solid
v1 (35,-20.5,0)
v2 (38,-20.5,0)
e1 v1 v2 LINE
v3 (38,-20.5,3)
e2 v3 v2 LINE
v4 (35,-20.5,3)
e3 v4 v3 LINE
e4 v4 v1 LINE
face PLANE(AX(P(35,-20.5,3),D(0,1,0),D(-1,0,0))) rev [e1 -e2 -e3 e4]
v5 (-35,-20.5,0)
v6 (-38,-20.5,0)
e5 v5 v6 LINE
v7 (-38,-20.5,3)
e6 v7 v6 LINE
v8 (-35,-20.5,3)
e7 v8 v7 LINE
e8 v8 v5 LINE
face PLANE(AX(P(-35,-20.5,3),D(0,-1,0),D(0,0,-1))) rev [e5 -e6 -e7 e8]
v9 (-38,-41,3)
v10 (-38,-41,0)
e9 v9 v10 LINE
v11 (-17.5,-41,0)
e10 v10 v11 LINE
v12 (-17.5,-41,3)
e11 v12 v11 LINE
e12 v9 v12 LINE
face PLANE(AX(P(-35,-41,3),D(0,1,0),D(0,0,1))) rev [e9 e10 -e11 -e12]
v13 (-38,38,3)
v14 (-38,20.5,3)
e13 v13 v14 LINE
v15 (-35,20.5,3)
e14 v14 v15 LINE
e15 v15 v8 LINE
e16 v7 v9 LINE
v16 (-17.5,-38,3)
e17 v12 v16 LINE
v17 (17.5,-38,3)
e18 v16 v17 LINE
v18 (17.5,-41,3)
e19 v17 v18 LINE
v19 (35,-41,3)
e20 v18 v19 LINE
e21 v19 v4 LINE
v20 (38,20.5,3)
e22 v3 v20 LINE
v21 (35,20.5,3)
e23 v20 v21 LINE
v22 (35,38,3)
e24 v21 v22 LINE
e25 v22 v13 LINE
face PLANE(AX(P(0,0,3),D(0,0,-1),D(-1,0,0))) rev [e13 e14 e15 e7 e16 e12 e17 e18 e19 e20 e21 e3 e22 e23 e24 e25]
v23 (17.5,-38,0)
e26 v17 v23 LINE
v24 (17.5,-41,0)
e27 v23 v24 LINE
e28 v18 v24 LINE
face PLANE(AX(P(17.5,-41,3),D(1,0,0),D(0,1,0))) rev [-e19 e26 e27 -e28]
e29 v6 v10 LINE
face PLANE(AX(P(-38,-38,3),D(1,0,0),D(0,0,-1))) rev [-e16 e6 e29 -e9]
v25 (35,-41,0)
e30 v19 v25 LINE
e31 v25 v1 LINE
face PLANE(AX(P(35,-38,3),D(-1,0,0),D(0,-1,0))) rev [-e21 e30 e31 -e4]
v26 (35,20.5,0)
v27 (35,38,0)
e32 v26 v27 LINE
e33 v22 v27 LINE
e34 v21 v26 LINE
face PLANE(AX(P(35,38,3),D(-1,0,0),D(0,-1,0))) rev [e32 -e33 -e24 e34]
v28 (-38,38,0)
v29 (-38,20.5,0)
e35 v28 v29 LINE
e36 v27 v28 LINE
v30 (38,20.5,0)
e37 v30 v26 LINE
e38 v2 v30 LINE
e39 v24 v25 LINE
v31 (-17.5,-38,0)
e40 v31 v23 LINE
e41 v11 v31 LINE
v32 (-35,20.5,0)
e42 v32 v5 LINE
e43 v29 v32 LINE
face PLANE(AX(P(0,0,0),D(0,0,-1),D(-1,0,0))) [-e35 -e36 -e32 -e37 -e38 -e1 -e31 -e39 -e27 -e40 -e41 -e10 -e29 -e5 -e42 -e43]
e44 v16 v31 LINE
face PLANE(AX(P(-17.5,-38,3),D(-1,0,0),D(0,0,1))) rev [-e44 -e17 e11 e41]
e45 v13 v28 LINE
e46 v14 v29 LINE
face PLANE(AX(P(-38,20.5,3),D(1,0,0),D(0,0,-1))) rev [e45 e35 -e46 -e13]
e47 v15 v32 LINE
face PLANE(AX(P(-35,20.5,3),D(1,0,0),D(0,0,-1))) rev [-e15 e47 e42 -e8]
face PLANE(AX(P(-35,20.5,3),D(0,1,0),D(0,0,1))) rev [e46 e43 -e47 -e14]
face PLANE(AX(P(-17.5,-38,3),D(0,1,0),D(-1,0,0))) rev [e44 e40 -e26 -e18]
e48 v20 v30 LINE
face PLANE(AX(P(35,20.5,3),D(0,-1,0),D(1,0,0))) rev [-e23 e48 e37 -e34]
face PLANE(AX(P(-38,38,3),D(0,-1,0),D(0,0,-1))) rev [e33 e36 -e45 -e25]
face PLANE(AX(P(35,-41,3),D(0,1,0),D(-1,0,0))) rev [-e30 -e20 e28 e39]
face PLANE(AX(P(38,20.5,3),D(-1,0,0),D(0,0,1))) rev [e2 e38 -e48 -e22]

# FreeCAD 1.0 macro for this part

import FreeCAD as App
import Part
import Sketcher

doc = App.newDocument("Part")
body = doc.addObject("PartDesign::Body", "Body")

sketch1 = body.newObject("Sketcher::SketchObject", "Sketch")
sketch1.AttachmentSupport = (doc.getObject("XY_Plane"), [""])
sketch1.MapMode = "FlatFace"
sketch1.addGeometry([
    Part.LineSegment(App.Vector(35, 38, 0), App.Vector(-38, 38, 0)),
    Part.LineSegment(App.Vector(-38, 38, 0), App.Vector(-38, 20.5, 0)),
    Part.LineSegment(App.Vector(-38, 20.5, 0), App.Vector(-35, 20.5, 0)),
    Part.LineSegment(App.Vector(-35, 20.5, 0), App.Vector(-35, -20.5, 0)),
    Part.LineSegment(App.Vector(-35, -20.5, 0), App.Vector(-38, -20.5, 0)),
    Part.LineSegment(App.Vector(-38, -20.5, 0), App.Vector(-38, -41, 0)),
    Part.LineSegment(App.Vector(-38, -41, 0), App.Vector(-17.5, -41, 0)),
    Part.LineSegment(App.Vector(-17.5, -41, 0), App.Vector(-17.5, -38, 0)),
    Part.LineSegment(App.Vector(-17.5, -38, 0), App.Vector(17.5, -38, 0)),
    Part.LineSegment(App.Vector(17.5, -38, 0), App.Vector(17.5, -41, 0)),
    Part.LineSegment(App.Vector(17.5, -41, 0), App.Vector(35, -41, 0)),
    Part.LineSegment(App.Vector(35, -41, 0), App.Vector(35, -20.5, 0)),
    Part.LineSegment(App.Vector(35, -20.5, 0), App.Vector(38, -20.5, 0)),
    Part.LineSegment(App.Vector(38, -20.5, 0), App.Vector(38, 20.5, 0)),
    Part.LineSegment(App.Vector(38, 20.5, 0), App.Vector(35, 20.5, 0)),
    Part.LineSegment(App.Vector(35, 20.5, 0), App.Vector(35, 38, 0)),
], False)
sketch1.addConstraint([
    Sketcher.Constraint("Coincident", 0, 2, 1, 1),
    Sketcher.Constraint("Coincident", 1, 2, 2, 1),
    Sketcher.Constraint("Coincident", 2, 2, 3, 1),
    Sketcher.Constraint("Coincident", 3, 2, 4, 1),
    Sketcher.Constraint("Coincident", 4, 2, 5, 1),
    Sketcher.Constraint("Coincident", 5, 2, 6, 1),
    Sketcher.Constraint("Coincident", 6, 2, 7, 1),
    Sketcher.Constraint("Coincident", 7, 2, 8, 1),
    Sketcher.Constraint("Coincident", 8, 2, 9, 1),
    Sketcher.Constraint("Coincident", 9, 2, 10, 1),
    Sketcher.Constraint("Coincident", 10, 2, 11, 1),
    Sketcher.Constraint("Coincident", 11, 2, 12, 1),
    Sketcher.Constraint("Coincident", 12, 2, 13, 1),
    Sketcher.Constraint("Coincident", 13, 2, 14, 1),
    Sketcher.Constraint("Coincident", 14, 2, 15, 1),
    Sketcher.Constraint("Coincident", 15, 2, 0, 1),
    Sketcher.Constraint("Horizontal", 0),
    Sketcher.Constraint("Vertical", 1),
    Sketcher.Constraint("Horizontal", 2),
    Sketcher.Constraint("Vertical", 3),
    Sketcher.Constraint("Horizontal", 4),
    Sketcher.Constraint("Vertical", 5),
    Sketcher.Constraint("Horizontal", 6),
    Sketcher.Constraint("Vertical", 7),
    Sketcher.Constraint("Horizontal", 8),
    Sketcher.Constraint("Vertical", 9),
    Sketcher.Constraint("Horizontal", 10),
    Sketcher.Constraint("Vertical", 11),
    Sketcher.Constraint("Horizontal", 12),
    Sketcher.Constraint("Vertical", 13),
    Sketcher.Constraint("Horizontal", 14),
    Sketcher.Constraint("Vertical", 15),
    Sketcher.Constraint("Symmetric", 2, 2, 11, 2, -1, 1),
    Sketcher.Constraint("Symmetric", 4, 2, 13, 2, -1, 1),
    Sketcher.Constraint("Symmetric", 6, 2, 9, 2, -2),
    Sketcher.Constraint("Symmetric", 1, 2, 13, 2, -2),
    Sketcher.Constraint("Vertical", 11, 2, 14, 2),
    Sketcher.Constraint("Equal", 10, 1),
    Sketcher.Constraint("Equal", 6, 5),
    Sketcher.Constraint("Equal", 14, 7),
    Sketcher.Constraint("DistanceX", 0, 2, 0, 1, 73.0),
    Sketcher.Constraint("DistanceX", 2, 1, 2, 2, 3.0),
    Sketcher.Constraint("DistanceX", 8, 1, 8, 2, 35.0),
    Sketcher.Constraint("DistanceY", 3, 2, 3, 1, 41.0),
])
pad1 = body.newObject("PartDesign::Pad", "Pad")
pad1.Profile = sketch1
pad1.Length = 3

doc.recompute()
